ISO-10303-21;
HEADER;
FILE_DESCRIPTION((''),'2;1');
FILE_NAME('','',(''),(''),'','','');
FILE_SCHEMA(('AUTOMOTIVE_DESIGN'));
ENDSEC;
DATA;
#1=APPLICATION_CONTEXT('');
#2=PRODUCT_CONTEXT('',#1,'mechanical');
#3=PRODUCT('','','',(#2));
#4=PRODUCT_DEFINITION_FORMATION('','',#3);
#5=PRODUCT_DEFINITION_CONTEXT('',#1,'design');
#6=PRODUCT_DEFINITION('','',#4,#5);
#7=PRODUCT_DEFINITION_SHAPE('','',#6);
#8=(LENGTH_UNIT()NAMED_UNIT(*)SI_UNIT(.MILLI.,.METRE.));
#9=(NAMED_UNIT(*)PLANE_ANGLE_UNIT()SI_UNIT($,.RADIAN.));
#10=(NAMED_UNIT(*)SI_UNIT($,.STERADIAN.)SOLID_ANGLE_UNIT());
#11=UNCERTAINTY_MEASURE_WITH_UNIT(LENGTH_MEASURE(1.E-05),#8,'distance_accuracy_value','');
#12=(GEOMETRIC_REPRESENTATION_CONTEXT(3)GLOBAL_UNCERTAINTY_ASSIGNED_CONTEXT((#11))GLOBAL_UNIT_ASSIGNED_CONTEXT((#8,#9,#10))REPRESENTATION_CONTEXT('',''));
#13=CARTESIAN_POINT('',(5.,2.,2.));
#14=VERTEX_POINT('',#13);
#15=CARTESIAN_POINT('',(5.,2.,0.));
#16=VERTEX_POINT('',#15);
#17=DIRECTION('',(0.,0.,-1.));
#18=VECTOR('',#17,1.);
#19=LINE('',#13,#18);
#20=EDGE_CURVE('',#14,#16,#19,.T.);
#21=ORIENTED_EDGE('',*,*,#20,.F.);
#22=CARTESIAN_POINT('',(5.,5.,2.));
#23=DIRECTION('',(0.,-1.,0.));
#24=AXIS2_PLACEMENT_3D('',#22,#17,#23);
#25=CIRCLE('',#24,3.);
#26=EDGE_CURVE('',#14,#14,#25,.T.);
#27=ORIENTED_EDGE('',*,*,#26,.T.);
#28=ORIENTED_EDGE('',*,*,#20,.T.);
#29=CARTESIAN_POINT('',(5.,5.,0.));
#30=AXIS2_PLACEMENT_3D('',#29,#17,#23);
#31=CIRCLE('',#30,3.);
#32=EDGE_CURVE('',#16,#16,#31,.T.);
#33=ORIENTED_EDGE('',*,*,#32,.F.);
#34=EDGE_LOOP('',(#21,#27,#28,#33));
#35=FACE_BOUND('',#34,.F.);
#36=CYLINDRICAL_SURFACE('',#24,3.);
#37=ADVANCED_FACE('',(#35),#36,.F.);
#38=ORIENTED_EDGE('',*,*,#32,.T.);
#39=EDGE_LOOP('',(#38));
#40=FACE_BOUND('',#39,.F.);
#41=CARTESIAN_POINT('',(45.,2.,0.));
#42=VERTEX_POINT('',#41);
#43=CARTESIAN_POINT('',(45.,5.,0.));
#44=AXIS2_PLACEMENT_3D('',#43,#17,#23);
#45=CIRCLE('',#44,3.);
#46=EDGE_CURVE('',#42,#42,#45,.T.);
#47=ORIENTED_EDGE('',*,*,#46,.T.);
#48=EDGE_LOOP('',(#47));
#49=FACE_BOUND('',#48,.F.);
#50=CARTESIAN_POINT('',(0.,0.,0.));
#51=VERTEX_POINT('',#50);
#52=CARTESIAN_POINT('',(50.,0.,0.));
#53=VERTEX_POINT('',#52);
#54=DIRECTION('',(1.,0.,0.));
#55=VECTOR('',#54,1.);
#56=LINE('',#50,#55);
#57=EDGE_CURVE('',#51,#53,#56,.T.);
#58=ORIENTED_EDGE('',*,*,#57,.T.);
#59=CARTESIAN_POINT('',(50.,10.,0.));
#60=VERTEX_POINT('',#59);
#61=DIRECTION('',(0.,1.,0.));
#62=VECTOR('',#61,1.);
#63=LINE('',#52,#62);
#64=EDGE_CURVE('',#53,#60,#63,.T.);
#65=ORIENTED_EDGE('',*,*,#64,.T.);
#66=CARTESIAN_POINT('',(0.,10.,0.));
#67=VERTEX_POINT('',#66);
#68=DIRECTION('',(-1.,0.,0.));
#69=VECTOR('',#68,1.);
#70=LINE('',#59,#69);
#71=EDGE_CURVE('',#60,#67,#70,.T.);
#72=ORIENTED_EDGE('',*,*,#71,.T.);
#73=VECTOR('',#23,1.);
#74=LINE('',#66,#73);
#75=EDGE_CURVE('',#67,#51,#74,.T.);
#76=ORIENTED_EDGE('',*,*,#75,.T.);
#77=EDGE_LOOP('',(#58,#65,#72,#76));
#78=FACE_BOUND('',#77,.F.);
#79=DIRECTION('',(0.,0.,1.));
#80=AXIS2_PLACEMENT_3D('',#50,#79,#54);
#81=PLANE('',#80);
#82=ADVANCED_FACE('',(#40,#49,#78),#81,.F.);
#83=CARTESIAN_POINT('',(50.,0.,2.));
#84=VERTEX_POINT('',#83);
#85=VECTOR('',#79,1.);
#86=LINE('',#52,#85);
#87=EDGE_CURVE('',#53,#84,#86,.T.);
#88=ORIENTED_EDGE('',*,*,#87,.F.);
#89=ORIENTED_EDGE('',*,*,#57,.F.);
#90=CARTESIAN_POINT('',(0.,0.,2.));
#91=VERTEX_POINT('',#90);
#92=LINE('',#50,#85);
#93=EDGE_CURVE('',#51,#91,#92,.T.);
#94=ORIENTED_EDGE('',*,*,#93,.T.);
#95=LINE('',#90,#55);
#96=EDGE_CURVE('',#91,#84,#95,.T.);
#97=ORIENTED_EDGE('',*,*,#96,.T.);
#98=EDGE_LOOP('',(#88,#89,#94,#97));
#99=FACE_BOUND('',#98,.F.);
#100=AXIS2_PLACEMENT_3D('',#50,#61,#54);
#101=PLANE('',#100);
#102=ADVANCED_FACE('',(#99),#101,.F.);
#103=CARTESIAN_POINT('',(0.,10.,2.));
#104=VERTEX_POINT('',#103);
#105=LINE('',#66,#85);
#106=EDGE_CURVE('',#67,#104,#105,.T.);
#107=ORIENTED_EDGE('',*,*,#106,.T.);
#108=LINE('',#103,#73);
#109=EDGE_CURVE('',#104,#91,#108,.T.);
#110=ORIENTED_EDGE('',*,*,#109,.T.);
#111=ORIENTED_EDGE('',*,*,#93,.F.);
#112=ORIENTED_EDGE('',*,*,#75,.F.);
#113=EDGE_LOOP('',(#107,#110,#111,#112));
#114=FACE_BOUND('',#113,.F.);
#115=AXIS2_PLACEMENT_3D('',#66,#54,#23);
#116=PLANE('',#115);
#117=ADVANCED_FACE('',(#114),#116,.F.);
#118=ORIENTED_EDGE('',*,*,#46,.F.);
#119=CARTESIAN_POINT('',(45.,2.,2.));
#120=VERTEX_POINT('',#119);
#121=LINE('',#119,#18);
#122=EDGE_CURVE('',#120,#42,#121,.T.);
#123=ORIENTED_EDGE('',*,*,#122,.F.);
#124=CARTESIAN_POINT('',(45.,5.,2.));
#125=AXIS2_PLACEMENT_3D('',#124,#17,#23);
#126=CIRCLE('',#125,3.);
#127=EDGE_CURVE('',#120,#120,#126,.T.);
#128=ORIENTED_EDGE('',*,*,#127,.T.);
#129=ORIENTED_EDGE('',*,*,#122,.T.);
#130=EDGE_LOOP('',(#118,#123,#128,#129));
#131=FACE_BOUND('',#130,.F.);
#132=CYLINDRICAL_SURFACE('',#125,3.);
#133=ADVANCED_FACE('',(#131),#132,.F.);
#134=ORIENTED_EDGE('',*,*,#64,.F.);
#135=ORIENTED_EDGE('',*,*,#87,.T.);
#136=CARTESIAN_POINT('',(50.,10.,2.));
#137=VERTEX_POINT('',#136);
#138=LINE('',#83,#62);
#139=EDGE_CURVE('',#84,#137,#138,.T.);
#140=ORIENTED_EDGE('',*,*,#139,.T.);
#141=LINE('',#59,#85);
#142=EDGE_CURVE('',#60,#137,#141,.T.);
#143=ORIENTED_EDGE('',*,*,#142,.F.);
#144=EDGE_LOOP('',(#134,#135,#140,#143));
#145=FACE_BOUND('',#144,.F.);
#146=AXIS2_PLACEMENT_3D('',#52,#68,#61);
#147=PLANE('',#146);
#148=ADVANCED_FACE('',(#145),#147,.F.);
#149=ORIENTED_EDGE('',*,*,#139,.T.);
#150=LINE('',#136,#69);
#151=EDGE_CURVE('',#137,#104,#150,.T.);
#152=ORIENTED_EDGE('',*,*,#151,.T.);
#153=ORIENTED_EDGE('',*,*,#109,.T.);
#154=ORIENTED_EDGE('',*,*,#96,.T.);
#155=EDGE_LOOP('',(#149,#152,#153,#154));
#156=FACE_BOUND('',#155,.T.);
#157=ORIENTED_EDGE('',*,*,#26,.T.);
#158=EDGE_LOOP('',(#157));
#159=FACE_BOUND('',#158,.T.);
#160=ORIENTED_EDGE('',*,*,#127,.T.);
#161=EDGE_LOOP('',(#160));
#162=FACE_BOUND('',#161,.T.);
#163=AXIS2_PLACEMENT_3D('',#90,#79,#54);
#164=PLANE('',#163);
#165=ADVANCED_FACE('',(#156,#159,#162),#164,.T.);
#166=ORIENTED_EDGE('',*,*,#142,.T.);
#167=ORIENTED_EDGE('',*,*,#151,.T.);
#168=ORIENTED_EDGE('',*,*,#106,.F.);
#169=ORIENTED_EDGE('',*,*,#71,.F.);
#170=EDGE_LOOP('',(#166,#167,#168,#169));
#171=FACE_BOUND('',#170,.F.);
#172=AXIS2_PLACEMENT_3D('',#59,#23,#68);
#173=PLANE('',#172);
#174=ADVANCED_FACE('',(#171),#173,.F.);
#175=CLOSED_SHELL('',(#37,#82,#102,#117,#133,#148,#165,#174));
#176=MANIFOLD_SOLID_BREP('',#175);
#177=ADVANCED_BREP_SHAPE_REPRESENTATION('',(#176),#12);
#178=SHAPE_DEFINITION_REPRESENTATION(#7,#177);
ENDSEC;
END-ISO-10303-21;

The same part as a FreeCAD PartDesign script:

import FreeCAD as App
import Part
import Sketcher
Q = App.Units.Quantity


def add_polygon(sketch, points):
    """Adds a closed chain of lines whose ends are joined by coincident constraints."""
    first, n = sketch.GeometryCount, len(points)
    for a, b in zip(points, points[1:] + points[:1]):
        sketch.addGeometry(Part.LineSegment(App.Vector(*a, 0), App.Vector(*b, 0)), False)
    for i in range(n):
        sketch.addConstraint(Sketcher.Constraint("Coincident", first + i, 2, first + (i + 1) % n, 1))

doc = App.newDocument("Part")
params = doc.addObject("Spreadsheet::Sheet", "Params")
for row, (alias, value) in enumerate([
    ("sketch1_width", "50 mm"),
    ("sketch1_height", "10 mm"),
    ("pad1_length", "2 mm"),
    ("sketch2_diameter", "6 mm"),
    ("hole_diameter", "6 mm"),
], start=1):
    params.set(f"A{row}", alias)
    params.set(f"B{row}", "=" + value)
    params.setAlias(f"B{row}", alias)

body = doc.addObject("PartDesign::Body", "Body")

# Sketch on XY plane
sketch1 = body.newObject("Sketcher::SketchObject", "Sketch")
sketch1.AttachmentSupport = (doc.getObject("XY_Plane"), [""])
sketch1.MapMode = "FlatFace"
add_polygon(sketch1, [(0, 10), (0, 0), (50, 0), (50, 10)])  # lines 0-3
sketch1.addConstraint([
    Sketcher.Constraint("Vertical", 0),
    Sketcher.Constraint("Horizontal", 1),
    Sketcher.Constraint("Vertical", 2),
    Sketcher.Constraint("Horizontal", 3),
    Sketcher.Constraint("Coincident", 0, 2, -1, 1),
    Sketcher.Constraint("DistanceX", 1, 1, 1, 2, Q("50 mm")),
    Sketcher.Constraint("DistanceY", 0, 2, 0, 1, Q("10 mm")),
])
sketch1.setExpression("Constraints[9]", "Params.sketch1_width")
sketch1.setExpression("Constraints[10]", "Params.sketch1_height")
pad1 = body.newObject("PartDesign::Pad", "Pad")
pad1.Profile = sketch1
pad1.setExpression("Length", "Params.pad1_length")

# Sketch on XY plane
sketch2 = body.newObject("Sketcher::SketchObject", "Sketch001")
sketch2.AttachmentSupport = (doc.getObject("XY_Plane"), [""])
sketch2.MapMode = "FlatFace"
sketch2.AttachmentOffset = App.Placement(App.Vector(0, 0, 2), App.Rotation())
sketch2.addGeometry([
    Part.Circle(App.Vector(5, 5, 0), App.Vector(0, 0, 1), 3),
    Part.Circle(App.Vector(45, 5, 0), App.Vector(0, 0, 1), 3),
], False)
sketch2.addConstraint([
    Sketcher.Constraint("Equal", 0, 1),
    Sketcher.Constraint("Horizontal", 0, 3, 1, 3),
    Sketcher.Constraint("Diameter", 0, Q("6 mm")),
    Sketcher.Constraint("DistanceX", -1, 1, 0, 3, Q("5 mm")),
    Sketcher.Constraint("DistanceY", -1, 1, 0, 3, Q("5 mm")),
    Sketcher.Constraint("DistanceX", -1, 1, 1, 3, Q("45 mm")),
])
sketch2.setExpression("Constraints[2]", "Params.sketch2_diameter")
doc.recompute()
hole = body.newObject("PartDesign::Hole", "Hole")
hole.Profile = sketch2
hole.ThreadType = "None"
hole.setExpression("Diameter", "Params.hole_diameter")
hole.DepthType = "ThroughAll"

doc.recompute()
